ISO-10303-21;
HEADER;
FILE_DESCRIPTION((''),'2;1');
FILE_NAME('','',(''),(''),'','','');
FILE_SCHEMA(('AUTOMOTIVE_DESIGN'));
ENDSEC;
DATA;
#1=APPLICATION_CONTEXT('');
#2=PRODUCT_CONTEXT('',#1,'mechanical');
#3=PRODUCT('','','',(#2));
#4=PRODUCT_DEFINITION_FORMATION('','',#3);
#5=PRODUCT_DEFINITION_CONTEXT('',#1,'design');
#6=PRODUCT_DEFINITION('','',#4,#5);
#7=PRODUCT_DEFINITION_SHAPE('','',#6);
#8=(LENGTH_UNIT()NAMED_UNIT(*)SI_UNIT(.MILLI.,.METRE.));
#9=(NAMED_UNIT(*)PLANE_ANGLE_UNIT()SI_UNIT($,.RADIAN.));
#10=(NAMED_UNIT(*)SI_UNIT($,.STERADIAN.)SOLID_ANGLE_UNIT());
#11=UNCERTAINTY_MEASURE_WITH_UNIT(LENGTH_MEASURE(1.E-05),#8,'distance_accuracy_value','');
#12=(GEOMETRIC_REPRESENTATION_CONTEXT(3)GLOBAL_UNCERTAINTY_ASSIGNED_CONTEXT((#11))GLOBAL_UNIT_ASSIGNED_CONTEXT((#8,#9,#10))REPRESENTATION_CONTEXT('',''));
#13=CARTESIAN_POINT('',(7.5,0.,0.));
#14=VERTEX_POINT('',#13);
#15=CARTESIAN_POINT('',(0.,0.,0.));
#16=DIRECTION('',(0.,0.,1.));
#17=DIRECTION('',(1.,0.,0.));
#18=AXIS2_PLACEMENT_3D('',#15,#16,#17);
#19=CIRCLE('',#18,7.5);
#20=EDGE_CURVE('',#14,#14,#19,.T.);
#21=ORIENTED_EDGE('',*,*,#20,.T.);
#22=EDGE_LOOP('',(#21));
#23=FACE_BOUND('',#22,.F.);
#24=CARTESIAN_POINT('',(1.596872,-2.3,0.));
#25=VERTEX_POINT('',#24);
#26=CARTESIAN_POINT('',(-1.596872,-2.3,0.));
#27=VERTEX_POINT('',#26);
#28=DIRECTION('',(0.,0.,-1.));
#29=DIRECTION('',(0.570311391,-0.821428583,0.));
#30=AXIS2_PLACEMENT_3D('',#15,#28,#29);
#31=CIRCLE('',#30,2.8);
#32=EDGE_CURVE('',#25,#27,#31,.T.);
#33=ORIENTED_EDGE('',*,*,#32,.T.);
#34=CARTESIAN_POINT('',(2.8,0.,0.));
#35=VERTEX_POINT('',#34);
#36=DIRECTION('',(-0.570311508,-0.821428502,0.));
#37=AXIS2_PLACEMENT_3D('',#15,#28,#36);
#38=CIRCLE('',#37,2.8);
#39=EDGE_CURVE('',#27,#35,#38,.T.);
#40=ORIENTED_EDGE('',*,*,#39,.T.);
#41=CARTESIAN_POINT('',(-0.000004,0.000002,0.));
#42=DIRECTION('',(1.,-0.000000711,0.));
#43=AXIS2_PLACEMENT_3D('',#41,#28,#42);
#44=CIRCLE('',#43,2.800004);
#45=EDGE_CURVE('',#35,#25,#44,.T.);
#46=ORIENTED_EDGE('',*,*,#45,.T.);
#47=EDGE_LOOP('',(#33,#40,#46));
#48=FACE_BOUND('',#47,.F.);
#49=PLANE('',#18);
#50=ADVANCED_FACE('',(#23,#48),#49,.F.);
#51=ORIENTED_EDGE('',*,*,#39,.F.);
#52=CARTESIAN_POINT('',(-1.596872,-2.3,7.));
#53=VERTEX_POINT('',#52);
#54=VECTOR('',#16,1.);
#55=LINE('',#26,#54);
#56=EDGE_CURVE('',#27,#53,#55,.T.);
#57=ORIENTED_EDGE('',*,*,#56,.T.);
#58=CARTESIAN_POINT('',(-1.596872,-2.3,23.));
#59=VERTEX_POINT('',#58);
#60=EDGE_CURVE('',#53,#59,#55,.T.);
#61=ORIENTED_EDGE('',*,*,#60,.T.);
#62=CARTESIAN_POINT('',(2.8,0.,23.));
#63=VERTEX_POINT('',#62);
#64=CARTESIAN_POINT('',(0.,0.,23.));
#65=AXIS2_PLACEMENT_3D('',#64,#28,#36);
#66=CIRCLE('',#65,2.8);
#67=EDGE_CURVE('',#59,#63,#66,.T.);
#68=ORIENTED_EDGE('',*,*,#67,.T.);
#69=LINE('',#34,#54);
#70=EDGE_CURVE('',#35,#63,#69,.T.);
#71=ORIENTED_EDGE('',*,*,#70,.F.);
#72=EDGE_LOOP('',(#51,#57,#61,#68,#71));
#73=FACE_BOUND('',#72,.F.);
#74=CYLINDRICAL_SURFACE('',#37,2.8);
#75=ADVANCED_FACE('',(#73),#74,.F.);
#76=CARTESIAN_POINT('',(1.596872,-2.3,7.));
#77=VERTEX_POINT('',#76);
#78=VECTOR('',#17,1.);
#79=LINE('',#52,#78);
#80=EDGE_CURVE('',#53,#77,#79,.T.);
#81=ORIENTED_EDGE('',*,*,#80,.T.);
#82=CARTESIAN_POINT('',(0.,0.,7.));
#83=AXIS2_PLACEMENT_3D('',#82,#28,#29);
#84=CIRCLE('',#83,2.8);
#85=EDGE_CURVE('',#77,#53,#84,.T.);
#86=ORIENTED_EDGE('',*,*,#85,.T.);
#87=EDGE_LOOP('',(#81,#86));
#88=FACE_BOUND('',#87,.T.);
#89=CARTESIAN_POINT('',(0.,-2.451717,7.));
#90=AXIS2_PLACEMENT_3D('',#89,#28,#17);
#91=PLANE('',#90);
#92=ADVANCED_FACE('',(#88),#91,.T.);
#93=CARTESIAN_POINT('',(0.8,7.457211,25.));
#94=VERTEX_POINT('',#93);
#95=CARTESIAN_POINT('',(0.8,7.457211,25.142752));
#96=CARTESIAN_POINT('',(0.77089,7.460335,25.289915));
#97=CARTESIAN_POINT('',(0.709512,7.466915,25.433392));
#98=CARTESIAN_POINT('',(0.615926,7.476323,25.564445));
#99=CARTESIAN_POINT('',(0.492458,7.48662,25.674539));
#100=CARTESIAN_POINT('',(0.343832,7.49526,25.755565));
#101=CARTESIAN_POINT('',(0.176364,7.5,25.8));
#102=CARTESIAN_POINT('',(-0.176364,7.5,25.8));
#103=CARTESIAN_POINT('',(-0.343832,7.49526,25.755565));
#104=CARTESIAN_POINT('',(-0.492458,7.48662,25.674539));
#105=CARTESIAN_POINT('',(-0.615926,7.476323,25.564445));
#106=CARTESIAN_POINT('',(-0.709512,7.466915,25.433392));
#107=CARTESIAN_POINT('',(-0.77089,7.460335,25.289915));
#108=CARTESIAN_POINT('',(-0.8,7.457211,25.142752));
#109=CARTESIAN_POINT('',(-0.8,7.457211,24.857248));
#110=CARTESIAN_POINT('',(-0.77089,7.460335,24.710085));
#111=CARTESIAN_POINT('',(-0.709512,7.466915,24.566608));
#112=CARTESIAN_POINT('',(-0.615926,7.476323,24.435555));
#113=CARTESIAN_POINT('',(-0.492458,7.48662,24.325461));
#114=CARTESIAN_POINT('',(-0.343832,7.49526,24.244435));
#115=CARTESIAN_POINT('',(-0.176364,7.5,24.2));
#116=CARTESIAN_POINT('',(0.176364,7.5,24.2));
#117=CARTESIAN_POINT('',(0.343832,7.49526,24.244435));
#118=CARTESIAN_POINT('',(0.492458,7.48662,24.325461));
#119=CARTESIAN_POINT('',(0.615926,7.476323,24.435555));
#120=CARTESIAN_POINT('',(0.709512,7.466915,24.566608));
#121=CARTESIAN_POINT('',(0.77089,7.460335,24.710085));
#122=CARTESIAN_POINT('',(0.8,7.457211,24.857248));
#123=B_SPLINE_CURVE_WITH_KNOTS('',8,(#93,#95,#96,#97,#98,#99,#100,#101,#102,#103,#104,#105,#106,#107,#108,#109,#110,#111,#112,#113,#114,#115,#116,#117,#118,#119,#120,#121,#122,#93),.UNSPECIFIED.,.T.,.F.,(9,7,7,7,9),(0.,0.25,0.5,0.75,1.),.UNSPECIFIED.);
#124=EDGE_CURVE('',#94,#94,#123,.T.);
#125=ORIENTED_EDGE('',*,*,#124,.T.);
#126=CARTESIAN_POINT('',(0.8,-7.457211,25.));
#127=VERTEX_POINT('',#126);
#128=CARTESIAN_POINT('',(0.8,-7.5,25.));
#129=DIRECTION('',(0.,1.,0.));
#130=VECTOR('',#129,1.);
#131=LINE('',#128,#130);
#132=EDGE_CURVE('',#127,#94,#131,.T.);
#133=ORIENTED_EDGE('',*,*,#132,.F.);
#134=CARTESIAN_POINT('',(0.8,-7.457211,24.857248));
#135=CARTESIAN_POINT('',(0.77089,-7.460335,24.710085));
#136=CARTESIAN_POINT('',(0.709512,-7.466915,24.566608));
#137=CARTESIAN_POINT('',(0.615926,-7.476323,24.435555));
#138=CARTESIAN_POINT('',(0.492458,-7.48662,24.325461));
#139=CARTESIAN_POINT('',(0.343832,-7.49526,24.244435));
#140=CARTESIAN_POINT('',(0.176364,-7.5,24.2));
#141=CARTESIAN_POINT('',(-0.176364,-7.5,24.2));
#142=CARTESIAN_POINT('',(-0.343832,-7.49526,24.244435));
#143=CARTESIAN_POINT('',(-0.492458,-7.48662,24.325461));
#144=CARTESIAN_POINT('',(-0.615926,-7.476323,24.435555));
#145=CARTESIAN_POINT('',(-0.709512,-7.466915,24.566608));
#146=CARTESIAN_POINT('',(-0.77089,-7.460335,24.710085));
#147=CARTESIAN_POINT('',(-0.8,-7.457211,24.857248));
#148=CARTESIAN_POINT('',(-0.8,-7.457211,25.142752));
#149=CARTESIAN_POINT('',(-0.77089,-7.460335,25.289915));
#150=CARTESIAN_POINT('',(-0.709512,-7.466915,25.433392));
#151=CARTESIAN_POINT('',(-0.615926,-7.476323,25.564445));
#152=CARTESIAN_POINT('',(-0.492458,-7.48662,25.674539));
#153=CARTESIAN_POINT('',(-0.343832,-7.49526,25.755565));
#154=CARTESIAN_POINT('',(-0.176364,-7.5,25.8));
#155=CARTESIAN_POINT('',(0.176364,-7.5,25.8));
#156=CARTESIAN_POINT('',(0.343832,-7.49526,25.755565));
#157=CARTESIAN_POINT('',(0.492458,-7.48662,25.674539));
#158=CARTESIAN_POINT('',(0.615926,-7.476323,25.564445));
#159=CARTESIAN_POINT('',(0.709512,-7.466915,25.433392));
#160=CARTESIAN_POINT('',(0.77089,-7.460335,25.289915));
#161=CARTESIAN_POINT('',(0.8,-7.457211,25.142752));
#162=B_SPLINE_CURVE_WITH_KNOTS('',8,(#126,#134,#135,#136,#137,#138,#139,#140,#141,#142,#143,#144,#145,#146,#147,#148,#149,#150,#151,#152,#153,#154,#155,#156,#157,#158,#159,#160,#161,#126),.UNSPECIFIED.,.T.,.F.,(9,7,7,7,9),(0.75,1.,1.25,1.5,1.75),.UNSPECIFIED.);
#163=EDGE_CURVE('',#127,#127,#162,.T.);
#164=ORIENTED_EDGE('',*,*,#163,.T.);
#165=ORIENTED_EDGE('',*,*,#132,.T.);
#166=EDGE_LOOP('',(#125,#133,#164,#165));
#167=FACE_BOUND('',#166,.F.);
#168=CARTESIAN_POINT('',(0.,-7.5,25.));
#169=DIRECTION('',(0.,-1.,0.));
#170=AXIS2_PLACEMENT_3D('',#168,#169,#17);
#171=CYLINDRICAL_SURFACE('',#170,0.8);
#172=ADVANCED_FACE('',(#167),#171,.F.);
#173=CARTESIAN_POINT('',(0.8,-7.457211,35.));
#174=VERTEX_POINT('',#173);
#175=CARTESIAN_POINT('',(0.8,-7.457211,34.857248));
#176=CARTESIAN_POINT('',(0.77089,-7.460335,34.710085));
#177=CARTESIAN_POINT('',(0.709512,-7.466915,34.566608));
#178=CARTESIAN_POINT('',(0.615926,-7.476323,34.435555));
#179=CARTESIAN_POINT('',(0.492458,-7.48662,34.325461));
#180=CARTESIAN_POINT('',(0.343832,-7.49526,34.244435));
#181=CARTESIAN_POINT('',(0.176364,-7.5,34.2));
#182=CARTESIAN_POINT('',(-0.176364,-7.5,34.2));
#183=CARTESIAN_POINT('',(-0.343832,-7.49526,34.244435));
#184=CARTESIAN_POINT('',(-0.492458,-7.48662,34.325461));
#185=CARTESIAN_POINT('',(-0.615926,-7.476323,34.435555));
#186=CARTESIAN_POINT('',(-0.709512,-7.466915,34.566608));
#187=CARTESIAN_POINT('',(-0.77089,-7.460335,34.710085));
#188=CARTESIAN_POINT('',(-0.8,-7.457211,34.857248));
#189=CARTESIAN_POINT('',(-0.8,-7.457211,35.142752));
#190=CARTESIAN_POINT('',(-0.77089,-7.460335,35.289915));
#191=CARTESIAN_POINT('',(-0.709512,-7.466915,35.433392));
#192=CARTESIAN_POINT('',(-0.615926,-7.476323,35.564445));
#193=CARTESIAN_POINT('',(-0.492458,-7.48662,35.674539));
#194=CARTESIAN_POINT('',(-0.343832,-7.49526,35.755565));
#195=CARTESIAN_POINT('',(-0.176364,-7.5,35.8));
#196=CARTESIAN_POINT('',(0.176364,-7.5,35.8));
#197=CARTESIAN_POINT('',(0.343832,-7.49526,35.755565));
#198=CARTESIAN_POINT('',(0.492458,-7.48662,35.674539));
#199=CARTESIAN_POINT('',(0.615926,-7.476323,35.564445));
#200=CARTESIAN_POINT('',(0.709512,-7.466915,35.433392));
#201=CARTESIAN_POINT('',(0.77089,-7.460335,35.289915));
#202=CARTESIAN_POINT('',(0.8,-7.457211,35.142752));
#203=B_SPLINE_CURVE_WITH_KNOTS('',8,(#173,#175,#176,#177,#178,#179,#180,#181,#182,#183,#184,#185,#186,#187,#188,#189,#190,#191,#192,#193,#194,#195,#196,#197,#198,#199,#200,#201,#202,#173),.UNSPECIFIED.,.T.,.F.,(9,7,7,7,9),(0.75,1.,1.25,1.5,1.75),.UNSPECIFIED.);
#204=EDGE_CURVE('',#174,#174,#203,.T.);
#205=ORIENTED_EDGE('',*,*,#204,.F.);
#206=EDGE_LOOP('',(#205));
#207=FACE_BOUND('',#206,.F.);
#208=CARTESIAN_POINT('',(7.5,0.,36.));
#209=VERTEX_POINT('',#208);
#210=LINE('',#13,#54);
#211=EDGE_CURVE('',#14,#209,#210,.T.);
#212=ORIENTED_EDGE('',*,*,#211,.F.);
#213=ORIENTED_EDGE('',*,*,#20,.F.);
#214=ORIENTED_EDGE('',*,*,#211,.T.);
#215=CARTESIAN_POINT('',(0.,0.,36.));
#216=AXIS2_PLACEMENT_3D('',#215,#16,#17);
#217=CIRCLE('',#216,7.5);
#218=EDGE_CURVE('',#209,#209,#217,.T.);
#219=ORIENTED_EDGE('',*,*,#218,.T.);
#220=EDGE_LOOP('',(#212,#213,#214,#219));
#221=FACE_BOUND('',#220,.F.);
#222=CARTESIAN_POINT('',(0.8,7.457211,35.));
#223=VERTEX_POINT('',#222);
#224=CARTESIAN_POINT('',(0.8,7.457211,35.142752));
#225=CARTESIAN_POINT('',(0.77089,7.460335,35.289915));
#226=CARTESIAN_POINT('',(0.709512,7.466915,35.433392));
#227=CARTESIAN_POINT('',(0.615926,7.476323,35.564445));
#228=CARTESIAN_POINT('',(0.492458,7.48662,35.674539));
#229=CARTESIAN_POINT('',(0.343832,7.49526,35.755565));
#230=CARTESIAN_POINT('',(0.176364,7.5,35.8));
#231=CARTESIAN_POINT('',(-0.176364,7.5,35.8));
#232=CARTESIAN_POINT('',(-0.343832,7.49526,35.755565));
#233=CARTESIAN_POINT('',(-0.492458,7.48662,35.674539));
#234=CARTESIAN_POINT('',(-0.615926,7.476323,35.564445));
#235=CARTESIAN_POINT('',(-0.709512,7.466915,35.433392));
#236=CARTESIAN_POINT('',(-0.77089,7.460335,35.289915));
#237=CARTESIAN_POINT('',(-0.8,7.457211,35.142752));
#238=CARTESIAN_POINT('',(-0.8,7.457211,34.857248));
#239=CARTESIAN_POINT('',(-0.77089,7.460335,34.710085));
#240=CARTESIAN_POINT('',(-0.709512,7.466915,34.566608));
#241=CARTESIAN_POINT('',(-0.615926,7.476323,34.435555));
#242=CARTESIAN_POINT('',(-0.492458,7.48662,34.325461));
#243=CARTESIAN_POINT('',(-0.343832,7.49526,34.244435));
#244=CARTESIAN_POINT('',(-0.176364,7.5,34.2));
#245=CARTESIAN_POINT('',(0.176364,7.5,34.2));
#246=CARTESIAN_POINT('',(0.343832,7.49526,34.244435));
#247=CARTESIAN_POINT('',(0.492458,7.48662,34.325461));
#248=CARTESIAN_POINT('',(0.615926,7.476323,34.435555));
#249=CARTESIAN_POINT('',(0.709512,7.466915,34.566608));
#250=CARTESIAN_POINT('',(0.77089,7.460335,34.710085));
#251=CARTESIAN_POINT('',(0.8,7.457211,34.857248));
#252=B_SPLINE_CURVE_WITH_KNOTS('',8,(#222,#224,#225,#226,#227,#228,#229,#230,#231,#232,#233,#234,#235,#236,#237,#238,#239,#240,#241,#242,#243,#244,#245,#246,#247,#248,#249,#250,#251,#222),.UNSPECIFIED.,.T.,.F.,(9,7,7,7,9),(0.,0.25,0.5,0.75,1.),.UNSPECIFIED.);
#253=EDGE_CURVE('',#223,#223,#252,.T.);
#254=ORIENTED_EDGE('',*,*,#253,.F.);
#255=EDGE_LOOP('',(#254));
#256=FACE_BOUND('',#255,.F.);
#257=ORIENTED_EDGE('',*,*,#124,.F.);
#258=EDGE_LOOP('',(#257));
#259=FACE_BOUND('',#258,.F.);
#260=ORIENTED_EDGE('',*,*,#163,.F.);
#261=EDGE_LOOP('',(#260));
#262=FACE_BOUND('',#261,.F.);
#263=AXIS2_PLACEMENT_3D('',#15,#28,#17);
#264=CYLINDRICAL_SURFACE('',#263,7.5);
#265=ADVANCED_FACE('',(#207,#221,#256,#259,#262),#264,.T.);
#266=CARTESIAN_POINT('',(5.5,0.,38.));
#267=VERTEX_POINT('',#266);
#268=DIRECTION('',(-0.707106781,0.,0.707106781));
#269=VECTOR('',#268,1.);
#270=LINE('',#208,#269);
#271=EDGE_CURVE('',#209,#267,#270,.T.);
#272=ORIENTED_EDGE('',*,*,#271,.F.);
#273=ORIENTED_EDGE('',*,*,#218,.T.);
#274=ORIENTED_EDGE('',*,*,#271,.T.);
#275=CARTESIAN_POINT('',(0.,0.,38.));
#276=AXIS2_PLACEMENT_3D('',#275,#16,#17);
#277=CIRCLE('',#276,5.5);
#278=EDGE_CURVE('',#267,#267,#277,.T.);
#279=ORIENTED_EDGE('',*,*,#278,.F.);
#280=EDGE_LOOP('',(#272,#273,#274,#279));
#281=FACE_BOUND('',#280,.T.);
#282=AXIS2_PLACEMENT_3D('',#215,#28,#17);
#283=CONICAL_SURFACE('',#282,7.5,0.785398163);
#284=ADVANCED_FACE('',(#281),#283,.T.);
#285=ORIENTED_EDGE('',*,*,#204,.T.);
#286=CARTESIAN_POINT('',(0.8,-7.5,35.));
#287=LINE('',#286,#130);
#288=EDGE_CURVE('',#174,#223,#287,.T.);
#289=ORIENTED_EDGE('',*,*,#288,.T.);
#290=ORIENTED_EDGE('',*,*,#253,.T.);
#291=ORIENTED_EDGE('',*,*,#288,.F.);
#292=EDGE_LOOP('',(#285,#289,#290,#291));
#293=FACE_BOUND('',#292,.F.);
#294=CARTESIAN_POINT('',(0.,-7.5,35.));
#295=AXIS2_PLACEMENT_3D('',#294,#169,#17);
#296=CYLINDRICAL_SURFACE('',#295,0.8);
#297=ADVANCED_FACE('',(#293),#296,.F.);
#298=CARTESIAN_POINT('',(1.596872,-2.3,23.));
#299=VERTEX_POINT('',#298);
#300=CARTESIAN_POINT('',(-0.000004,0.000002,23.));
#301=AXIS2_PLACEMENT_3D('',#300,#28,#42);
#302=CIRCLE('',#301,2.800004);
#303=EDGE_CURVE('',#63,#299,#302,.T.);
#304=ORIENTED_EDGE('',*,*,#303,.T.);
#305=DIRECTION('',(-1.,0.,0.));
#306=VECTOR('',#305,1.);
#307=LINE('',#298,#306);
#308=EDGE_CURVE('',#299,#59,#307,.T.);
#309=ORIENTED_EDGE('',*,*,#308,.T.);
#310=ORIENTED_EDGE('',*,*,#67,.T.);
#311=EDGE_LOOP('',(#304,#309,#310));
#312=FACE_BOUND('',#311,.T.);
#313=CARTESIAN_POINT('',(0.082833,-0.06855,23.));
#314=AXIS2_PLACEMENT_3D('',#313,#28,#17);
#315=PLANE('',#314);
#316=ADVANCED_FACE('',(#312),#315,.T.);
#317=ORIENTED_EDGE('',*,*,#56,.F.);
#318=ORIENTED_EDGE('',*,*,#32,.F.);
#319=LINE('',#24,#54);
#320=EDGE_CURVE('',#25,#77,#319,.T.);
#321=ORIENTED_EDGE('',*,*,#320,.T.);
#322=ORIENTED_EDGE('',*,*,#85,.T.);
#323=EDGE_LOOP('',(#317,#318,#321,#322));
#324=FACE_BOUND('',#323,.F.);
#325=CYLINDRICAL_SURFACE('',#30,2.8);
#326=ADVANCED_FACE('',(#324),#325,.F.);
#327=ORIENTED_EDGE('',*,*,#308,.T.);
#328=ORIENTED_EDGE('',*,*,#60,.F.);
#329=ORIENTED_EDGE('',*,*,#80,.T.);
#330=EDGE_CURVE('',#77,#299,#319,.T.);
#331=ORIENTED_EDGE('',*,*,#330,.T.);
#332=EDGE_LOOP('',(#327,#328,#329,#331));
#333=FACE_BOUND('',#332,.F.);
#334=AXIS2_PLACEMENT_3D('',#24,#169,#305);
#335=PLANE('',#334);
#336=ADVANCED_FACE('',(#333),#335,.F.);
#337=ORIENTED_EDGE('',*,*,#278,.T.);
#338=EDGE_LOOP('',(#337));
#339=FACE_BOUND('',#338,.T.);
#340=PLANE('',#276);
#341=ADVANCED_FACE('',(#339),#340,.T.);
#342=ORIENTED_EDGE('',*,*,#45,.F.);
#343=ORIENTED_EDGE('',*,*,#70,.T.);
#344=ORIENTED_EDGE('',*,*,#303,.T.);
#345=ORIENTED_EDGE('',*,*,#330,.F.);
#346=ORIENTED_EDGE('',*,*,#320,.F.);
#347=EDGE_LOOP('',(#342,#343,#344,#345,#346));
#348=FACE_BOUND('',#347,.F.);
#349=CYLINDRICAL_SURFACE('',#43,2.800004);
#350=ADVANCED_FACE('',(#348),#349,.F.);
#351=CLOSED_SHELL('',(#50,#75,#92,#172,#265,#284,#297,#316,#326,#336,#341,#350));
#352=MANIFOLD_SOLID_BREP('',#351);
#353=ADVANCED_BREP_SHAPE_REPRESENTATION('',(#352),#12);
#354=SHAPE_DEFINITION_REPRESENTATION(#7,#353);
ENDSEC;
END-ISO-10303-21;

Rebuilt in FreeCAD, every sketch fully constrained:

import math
import FreeCAD as App
import Part
import Sketcher


def edges_at(feature, points):
    """Names of the edges that pass closest to the given points."""
    edges = feature.Shape.Edges
    near = lambda p: min(range(len(edges)), key=lambda i: edges[i].distToShape(Part.Vertex(*p))[0])
    return sorted({f"Edge{near(p) + 1}" for p in points})

doc = App.newDocument("Part")
body = doc.addObject("PartDesign::Body", "Body")

# Sketch on XY plane
sketch1 = doc.addObject("Sketcher::SketchObject", "Sketch")
body.addObject(sketch1)
sketch1.AttachmentSupport = (doc.XY_Plane, [""])
sketch1.MapMode = "FlatFace"
sketch1.addGeometry(Part.Circle(App.Vector(0, 0, 0), App.Vector(0, 0, 1), 8), False)
sketch1.addConstraint(Sketcher.Constraint("Coincident", 0, 3, -1, 1))
sketch1.addConstraint(Sketcher.Constraint("Diameter", 0, 15.0))
pad1 = doc.addObject("PartDesign::Pad", "Pad")
body.addObject(pad1)
pad1.Profile = sketch1
pad1.Length = 38

# Sketch on XZ plane
sketch2 = doc.addObject("Sketcher::SketchObject", "Sketch001")
body.addObject(sketch2)
sketch2.AttachmentSupport = (doc.XZ_Plane, [""])
sketch2.MapMode = "FlatFace"
sketch2.AttachmentOffset = App.Placement(App.Vector(0, 0, 7.5), App.Rotation())
sketch2.addGeometry(Part.Circle(App.Vector(0, 35, 0), App.Vector(0, 0, 1), 0.8), False)
sketch2.addGeometry(Part.Circle(App.Vector(0, 25, 0), App.Vector(0, 0, 1), 0.8), False)
sketch2.addConstraint(Sketcher.Constraint("Equal", 0, 1))
sketch2.addConstraint(Sketcher.Constraint("PointOnObject", 0, 3, -2))
sketch2.addConstraint(Sketcher.Constraint("PointOnObject", 1, 3, -2))
sketch2.addConstraint(Sketcher.Constraint("Diameter", 0, 1.6))
sketch2.addConstraint(Sketcher.Constraint("DistanceY", -1, 1, 0, 3, 35.0))
sketch2.addConstraint(Sketcher.Constraint("DistanceY", -1, 1, 1, 3, 25.0))
pocket1 = doc.addObject("PartDesign::Pocket", "Pocket")
body.addObject(pocket1)
pocket1.Profile = sketch2
pocket1.Type = "ThroughAll"
doc.recompute()

chamfer = doc.addObject("PartDesign::Chamfer", "Chamfer")
body.addObject(chamfer)
chamfer.Base = (pocket1, edges_at(pocket1, [(-7.5, 0, 38)]))
chamfer.Size = 2

# Sketch on XY plane
sketch3 = doc.addObject("Sketcher::SketchObject", "Sketch002")
body.addObject(sketch3)
sketch3.AttachmentSupport = (doc.XY_Plane, [""])
sketch3.MapMode = "FlatFace"
sketch3.addGeometry(Part.ArcOfCircle(Part.Circle(App.Vector(0, 0, 0), App.Vector(0, 0, 1), 2.8), math.radians(0), math.radians(235)), False)
sketch3.addGeometry(Part.ArcOfCircle(Part.Circle(App.Vector(0, 0, 0), App.Vector(0, 0, 1), 2.8), math.radians(-55), math.radians(0)), False)
sketch3.addGeometry(Part.LineSegment(App.Vector(1.6, -2.3, 0), App.Vector(-1.6, -2.3, 0)), False)
sketch3.addConstraint(Sketcher.Constraint("Tangent", 0, 1, 1, 2))
sketch3.addConstraint(Sketcher.Constraint("Coincident", 1, 1, 2, 1))
sketch3.addConstraint(Sketcher.Constraint("Coincident", 2, 2, 0, 2))
sketch3.addConstraint(Sketcher.Constraint("Horizontal", 2))
sketch3.addConstraint(Sketcher.Constraint("Coincident", 0, 3, -1, 1))
sketch3.addConstraint(Sketcher.Constraint("PointOnObject", 0, 1, -1))
sketch3.addConstraint(Sketcher.Constraint("Radius", 0, 2.8))
sketch3.addConstraint(Sketcher.Constraint("DistanceY", 1, 1, -1, 1, 2.3))
sketch3.addConstraint(Sketcher.Constraint("Radius", 1, 2.800004))
pocket2 = doc.addObject("PartDesign::Pocket", "Pocket001")
body.addObject(pocket2)
pocket2.Profile = sketch3
pocket2.Length = 23
pocket2.Reversed = True

# Sketch on XY plane
sketch4 = doc.addObject("Sketcher::SketchObject", "Sketch003")
body.addObject(sketch4)
sketch4.AttachmentSupport = (doc.XY_Plane, [""])
sketch4.MapMode = "FlatFace"
sketch4.addGeometry(Part.LineSegment(App.Vector(-1.6, -2.3, 0), App.Vector(1.6, -2.3, 0)), False)
sketch4.addGeometry(Part.ArcOfCircle(Part.Circle(App.Vector(0, 0, 0), App.Vector(0, 0, 1), 2.8), math.radians(-125), math.radians(-55)), False)
sketch4.addConstraint(Sketcher.Constraint("Coincident", 0, 1, 1, 1))
sketch4.addConstraint(Sketcher.Constraint("Coincident", 1, 2, 0, 2))
sketch4.addConstraint(Sketcher.Constraint("Horizontal", 0))
sketch4.addConstraint(Sketcher.Constraint("Coincident", 1, 3, -1, 1))
sketch4.addConstraint(Sketcher.Constraint("Radius", 1, 2.8))
sketch4.addConstraint(Sketcher.Constraint("DistanceY", 0, 1, -1, 1, 2.3))
pocket3 = doc.addObject("PartDesign::Pocket", "Pocket002")
body.addObject(pocket3)
pocket3.Profile = sketch4
pocket3.Length = 7
pocket3.Reversed = True

doc.recompute()
